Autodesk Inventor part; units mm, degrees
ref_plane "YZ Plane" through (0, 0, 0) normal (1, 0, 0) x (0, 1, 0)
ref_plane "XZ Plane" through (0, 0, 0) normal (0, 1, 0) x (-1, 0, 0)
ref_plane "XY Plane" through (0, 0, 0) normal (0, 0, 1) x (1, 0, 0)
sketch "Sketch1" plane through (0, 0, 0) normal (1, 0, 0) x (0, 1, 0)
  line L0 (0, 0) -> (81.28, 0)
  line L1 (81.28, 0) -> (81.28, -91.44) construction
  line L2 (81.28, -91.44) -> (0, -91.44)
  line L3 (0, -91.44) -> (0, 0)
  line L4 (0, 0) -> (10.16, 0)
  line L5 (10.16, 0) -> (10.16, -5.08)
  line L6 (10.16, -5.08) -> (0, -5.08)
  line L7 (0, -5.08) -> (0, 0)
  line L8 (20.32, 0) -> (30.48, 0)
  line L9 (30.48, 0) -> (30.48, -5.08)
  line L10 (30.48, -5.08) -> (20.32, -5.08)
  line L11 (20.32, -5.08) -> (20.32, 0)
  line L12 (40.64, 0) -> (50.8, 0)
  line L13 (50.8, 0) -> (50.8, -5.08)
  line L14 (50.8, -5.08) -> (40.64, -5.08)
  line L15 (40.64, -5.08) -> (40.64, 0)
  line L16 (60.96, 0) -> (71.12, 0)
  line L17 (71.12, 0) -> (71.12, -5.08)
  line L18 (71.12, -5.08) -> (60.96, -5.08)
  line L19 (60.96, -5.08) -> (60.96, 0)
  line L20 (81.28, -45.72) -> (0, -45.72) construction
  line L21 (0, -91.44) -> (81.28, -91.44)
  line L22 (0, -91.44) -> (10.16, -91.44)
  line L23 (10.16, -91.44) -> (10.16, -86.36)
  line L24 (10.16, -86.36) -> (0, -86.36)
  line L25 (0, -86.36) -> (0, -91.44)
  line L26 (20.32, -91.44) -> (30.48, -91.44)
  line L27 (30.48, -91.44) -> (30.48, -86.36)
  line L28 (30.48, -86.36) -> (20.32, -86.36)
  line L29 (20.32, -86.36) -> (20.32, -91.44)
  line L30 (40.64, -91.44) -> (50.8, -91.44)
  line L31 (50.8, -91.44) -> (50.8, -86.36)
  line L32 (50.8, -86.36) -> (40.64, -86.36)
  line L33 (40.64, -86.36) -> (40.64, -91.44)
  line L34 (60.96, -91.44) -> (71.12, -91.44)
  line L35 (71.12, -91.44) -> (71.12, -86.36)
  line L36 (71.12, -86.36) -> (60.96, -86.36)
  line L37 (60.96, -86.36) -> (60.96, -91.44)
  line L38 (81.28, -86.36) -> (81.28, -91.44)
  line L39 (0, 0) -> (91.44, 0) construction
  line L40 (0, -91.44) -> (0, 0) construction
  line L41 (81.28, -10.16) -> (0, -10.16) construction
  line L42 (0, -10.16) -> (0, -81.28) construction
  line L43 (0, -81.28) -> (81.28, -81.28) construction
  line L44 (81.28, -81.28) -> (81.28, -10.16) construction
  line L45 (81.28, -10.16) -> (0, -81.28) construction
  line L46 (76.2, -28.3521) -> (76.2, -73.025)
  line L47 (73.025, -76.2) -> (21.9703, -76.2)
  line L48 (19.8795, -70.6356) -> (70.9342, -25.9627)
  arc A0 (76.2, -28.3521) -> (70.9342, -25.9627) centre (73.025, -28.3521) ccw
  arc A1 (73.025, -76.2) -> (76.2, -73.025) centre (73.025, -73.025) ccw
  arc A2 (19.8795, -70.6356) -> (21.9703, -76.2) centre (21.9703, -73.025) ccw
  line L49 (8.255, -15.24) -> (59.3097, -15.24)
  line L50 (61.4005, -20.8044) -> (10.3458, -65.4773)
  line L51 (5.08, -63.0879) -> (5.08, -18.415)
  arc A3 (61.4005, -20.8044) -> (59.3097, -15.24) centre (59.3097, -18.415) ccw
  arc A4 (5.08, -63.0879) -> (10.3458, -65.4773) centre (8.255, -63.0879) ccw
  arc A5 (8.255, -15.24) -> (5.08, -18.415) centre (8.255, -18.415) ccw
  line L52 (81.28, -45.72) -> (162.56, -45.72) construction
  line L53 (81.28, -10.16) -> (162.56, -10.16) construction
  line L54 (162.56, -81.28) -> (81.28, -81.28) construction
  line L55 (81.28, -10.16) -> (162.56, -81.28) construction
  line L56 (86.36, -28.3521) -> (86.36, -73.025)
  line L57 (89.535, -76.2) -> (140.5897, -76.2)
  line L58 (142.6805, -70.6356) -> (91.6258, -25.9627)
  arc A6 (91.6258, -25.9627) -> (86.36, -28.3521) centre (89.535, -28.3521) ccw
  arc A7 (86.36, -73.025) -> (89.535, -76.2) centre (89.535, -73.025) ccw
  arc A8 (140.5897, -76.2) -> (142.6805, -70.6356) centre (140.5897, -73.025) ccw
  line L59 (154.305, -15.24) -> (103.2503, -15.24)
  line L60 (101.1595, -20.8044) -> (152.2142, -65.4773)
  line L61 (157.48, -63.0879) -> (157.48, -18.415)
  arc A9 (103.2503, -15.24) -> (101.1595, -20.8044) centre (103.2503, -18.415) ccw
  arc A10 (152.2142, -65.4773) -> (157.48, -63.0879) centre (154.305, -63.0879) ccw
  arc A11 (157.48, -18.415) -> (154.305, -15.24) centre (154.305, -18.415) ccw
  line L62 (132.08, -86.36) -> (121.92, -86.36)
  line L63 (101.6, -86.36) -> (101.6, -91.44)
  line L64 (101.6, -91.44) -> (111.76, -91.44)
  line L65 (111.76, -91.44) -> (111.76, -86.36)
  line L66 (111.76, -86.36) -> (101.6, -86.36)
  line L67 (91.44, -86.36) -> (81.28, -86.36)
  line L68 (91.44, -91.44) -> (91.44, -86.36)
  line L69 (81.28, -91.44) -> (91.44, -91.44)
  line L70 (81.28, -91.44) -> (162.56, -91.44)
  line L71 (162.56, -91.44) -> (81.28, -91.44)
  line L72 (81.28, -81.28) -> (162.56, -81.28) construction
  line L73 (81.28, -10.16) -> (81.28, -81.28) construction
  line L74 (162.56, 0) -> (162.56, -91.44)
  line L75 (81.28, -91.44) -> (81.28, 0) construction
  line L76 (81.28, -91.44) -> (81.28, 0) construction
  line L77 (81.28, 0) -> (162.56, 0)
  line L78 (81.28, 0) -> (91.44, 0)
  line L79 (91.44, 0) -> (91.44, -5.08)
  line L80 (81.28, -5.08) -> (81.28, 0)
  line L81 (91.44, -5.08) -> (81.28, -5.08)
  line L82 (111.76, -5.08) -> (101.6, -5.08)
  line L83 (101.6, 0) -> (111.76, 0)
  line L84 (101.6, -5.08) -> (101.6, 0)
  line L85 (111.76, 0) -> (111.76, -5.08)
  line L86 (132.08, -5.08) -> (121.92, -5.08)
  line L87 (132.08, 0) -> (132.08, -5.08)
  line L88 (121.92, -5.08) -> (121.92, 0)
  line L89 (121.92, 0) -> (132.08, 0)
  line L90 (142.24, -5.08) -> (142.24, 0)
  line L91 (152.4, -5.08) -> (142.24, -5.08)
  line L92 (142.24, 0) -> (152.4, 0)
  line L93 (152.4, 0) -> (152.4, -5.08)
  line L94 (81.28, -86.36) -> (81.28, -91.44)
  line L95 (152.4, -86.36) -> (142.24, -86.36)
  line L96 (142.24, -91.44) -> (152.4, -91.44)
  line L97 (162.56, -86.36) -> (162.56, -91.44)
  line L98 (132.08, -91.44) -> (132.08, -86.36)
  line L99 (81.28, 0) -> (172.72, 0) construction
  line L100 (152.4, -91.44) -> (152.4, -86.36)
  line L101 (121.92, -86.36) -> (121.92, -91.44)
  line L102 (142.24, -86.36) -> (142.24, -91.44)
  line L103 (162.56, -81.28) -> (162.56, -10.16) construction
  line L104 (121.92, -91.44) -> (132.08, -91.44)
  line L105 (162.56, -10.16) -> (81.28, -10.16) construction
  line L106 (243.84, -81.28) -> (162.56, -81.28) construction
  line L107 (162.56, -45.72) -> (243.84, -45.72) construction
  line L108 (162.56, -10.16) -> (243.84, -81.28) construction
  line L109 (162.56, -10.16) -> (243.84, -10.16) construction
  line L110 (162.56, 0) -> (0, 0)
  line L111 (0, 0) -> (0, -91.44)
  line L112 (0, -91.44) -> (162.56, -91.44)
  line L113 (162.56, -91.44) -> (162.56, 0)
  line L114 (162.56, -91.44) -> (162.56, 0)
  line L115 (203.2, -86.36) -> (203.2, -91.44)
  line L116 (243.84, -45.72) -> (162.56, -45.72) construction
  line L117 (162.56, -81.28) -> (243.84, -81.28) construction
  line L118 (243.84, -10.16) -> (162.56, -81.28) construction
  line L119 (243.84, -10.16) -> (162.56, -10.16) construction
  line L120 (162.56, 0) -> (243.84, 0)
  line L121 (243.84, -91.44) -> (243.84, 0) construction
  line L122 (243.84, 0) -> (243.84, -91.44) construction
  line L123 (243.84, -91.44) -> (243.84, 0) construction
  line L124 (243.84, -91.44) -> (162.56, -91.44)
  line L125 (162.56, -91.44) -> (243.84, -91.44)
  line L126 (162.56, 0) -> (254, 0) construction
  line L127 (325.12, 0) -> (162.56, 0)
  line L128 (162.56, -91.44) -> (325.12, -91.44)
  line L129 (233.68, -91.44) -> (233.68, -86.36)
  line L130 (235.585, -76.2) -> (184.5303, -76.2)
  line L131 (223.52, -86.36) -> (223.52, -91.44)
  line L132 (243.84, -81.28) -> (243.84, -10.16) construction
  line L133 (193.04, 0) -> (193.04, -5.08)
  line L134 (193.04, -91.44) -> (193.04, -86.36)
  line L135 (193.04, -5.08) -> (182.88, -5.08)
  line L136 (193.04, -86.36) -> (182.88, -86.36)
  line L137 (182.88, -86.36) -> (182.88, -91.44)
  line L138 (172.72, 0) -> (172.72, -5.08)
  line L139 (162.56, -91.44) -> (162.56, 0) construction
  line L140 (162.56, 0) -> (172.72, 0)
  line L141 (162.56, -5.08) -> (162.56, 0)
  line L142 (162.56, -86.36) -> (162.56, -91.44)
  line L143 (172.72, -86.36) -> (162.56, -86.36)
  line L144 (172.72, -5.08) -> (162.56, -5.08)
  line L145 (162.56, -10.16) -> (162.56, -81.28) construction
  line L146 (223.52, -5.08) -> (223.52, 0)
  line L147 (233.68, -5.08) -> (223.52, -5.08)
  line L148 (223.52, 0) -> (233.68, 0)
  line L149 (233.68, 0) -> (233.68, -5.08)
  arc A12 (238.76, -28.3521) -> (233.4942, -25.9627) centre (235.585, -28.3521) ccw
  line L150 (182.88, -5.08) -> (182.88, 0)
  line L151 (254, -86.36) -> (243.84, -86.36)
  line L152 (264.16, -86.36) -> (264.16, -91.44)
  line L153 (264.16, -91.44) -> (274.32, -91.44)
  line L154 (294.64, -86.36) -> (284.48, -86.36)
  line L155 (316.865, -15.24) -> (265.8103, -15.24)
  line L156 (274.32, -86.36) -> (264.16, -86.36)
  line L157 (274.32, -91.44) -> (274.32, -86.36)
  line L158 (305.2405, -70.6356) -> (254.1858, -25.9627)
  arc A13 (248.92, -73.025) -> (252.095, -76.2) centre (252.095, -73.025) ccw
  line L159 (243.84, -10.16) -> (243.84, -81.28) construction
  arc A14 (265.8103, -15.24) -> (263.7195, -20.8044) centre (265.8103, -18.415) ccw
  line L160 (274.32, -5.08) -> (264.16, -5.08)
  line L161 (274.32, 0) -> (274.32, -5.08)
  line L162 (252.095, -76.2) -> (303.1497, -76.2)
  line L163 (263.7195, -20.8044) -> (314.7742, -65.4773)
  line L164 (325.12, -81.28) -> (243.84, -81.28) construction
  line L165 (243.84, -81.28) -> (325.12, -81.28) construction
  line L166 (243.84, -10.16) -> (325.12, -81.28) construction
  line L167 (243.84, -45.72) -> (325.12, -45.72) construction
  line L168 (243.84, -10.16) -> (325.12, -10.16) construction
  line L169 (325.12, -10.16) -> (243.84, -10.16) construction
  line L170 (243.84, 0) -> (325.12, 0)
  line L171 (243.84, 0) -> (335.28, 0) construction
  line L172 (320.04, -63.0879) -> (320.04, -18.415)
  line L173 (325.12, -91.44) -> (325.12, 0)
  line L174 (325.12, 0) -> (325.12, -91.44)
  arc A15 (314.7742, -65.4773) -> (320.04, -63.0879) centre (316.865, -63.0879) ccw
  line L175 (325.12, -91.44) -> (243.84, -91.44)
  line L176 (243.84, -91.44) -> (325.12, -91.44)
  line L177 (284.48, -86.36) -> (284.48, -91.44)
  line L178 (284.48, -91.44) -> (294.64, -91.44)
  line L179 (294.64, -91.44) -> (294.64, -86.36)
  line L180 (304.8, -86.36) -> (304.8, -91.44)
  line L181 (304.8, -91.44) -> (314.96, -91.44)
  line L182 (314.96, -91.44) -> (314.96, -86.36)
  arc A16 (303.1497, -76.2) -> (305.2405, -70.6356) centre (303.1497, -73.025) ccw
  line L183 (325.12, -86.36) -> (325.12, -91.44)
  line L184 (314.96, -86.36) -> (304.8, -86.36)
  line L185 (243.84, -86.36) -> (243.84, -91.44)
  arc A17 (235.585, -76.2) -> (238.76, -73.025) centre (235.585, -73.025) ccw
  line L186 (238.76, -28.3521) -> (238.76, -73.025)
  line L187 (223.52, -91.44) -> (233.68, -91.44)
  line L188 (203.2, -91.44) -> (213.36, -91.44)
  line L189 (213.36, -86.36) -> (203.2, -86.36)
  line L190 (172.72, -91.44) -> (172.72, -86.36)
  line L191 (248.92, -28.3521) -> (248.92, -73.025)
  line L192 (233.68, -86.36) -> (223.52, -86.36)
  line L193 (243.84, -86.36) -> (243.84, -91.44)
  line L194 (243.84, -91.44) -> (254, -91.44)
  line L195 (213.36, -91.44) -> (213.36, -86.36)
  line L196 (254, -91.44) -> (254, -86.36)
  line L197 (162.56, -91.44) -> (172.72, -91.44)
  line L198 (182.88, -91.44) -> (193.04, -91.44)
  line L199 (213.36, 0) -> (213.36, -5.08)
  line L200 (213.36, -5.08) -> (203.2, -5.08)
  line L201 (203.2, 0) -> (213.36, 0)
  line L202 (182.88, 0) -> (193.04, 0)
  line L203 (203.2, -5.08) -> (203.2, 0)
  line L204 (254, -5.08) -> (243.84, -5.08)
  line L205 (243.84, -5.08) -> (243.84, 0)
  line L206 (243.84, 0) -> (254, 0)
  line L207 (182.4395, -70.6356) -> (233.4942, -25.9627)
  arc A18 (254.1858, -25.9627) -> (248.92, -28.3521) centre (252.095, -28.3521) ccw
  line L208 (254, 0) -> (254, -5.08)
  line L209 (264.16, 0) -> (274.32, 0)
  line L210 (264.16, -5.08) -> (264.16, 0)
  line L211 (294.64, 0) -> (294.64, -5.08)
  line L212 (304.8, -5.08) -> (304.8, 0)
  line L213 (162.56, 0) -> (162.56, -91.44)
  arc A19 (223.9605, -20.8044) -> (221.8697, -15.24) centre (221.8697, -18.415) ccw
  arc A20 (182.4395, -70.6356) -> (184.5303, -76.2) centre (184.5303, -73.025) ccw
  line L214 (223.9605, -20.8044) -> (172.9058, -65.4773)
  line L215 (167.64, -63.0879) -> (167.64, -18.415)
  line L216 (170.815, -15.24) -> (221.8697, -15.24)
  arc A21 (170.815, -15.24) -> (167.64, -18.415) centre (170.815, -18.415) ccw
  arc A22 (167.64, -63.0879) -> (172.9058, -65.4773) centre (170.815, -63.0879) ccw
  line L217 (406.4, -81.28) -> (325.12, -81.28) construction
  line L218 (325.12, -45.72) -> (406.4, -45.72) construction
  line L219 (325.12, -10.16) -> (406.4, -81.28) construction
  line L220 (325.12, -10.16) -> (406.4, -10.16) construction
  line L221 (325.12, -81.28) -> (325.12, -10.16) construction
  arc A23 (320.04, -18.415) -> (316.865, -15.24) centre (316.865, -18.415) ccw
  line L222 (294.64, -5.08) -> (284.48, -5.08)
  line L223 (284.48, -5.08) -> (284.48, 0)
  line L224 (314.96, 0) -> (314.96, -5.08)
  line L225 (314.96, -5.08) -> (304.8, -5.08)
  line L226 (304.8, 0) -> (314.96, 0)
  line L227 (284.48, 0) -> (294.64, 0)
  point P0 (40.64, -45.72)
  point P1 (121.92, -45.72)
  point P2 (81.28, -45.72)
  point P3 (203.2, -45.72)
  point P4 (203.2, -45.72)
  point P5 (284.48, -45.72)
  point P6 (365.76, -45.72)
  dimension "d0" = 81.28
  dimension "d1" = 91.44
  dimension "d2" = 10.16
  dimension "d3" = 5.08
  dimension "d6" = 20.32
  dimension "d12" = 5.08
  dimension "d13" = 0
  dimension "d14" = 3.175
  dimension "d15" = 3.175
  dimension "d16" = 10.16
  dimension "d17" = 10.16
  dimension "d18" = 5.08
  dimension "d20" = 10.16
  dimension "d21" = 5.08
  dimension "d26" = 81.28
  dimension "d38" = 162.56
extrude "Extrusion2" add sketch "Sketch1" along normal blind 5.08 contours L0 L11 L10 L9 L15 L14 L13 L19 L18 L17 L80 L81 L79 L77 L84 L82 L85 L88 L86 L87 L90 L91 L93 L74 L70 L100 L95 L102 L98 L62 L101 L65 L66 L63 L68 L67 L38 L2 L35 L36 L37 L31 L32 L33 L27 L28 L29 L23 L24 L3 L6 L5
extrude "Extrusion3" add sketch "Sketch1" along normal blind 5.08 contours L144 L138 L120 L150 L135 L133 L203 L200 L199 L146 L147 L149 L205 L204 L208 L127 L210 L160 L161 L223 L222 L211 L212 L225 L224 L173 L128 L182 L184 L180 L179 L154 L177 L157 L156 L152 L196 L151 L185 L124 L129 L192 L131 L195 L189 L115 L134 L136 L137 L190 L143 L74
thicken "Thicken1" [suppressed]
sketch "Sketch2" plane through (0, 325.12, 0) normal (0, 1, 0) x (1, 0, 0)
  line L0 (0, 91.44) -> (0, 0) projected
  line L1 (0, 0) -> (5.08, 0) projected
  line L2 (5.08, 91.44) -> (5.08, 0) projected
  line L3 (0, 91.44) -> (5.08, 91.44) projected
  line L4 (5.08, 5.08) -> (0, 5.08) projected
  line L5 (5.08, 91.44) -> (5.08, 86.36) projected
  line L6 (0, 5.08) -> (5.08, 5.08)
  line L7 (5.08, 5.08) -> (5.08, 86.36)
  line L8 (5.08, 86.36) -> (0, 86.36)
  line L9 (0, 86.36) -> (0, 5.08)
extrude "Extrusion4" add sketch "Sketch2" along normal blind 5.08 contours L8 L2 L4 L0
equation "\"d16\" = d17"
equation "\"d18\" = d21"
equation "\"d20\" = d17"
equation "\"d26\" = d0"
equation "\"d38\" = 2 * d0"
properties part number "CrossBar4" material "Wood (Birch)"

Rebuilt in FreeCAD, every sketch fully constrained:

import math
import FreeCAD as App
import Part
import Sketcher
Q = App.Units.Quantity


def add_polygon(sketch, points):
    """Adds a closed chain of lines whose ends are joined by coincident constraints."""
    first, n = sketch.GeometryCount, len(points)
    for a, b in zip(points, points[1:] + points[:1]):
        sketch.addGeometry(Part.LineSegment(App.Vector(*a, 0), App.Vector(*b, 0)), False)
    for i in range(n):
        sketch.addConstraint(Sketcher.Constraint("Coincident", first + i, 2, first + (i + 1) % n, 1))

doc = App.newDocument("Part")
params = doc.addObject("Spreadsheet::Sheet", "Params")
for row, (alias, value) in enumerate([
    ("sketch1_width", "0.4 in"),
    ("sketch1_height", "0.2 in"),
    ("sketch1_height2", "3.2 in"),
    ("sketch1_radius", "0.125 in"),
    ("pad1_length", "0.2 in"),
    ("sketch2_width", "0.4 in"),
    ("sketch2_height", "3.2 in"),
    ("sketch2_height2", "0.2 in"),
    ("sketch2_radius", "0.125 in"),
    ("pad2_length", "0.2 in"),
    ("sketch3_width", "0.2 in"),
    ("sketch3_height", "3.2 in"),
    ("pad3_length", "0.2 in"),
], start=1):
    params.set(f"A{row}", alias)
    params.set(f"B{row}", "=" + value)
    params.setAlias(f"B{row}", alias)

body = doc.addObject("PartDesign::Body", "Body")

# Sketch on YZ plane
sketch1 = body.newObject("Sketcher::SketchObject", "Sketch")
sketch1.AttachmentSupport = (doc.getObject("YZ_Plane"), [""])
sketch1.MapMode = "FlatFace"
add_polygon(sketch1, [(20.3, 0), (10.2, 0), (10.2, -5.1), (0, -5.1), (0, -86.4), (10.2, -86.4), (10.2, -91.4), (20.3, -91.4), (20.3, -86.4), (30.5, -86.4), (30.5, -91.4), (40.6, -91.4), (40.6, -86.4), (50.8, -86.4), (50.8, -91.4), (61, -91.4), (61, -86.4), (71.1, -86.4), (71.1, -91.4), (81.3, -91.4), (81.3, -86.4), (91.4, -86.4), (91.4, -91.4), (101.6, -91.4), (101.6, -86.4), (111.8, -86.4), (111.8, -91.4), (121.9, -91.4), (121.9, -86.4), (132.1, -86.4), (132.1, -91.4), (142.2, -91.4), (142.2, -86.4), (152.4, -86.4), (152.4, -91.4), (162.6, -91.4), (162.6, 0), (152.4, 0), (152.4, -5.1), (142.2, -5.1), (142.2, 0), (132.1, 0), (132.1, -5.1), (121.9, -5.1), (121.9, 0), (111.8, 0), (111.8, -5.1), (101.6, -5.1), (101.6, 0), (91.4, 0), (91.4, -5.1), (81.3, -5.1), (81.3, 0), (71.1, 0), (71.1, -5.1), (61, -5.1), (61, 0), (50.8, 0), (50.8, -5.1), (40.6, -5.1), (40.6, 0), (30.5, 0), (30.5, -5.1), (20.3, -5.1)])  # lines 0-63
sketch1.addGeometry(Part.ArcOfCircle(Part.Circle(App.Vector(73, -28.4, 0), App.Vector(0, 0, 1), 3.2), math.radians(0), math.radians(131)), False)  # 64
sketch1.addGeometry(Part.LineSegment(App.Vector(76.2, -28.4, 0), App.Vector(76.2, -73, 0)), False)  # 65
sketch1.addGeometry(Part.ArcOfCircle(Part.Circle(App.Vector(73, -73, 0), App.Vector(0, 0, 1), 3.2), math.radians(-90), math.radians(0)), False)  # 66
sketch1.addGeometry(Part.LineSegment(App.Vector(73, -76.2, 0), App.Vector(22, -76.2, 0)), False)  # 67
sketch1.addGeometry(Part.ArcOfCircle(Part.Circle(App.Vector(22, -73, 0), App.Vector(0, 0, 1), 3.2), math.radians(131), math.radians(270)), False)  # 68
sketch1.addGeometry(Part.LineSegment(App.Vector(19.9, -70.6, 0), App.Vector(70.9, -26, 0)), False)  # 69
sketch1.addGeometry(Part.LineSegment(App.Vector(86.4, -73, 0), App.Vector(86.4, -28.4, 0)), False)  # 70
sketch1.addGeometry(Part.ArcOfCircle(Part.Circle(App.Vector(89.5, -28.4, 0), App.Vector(0, 0, 1), 3.2), math.radians(49), math.radians(180)), False)  # 71
sketch1.addGeometry(Part.LineSegment(App.Vector(91.6, -26, 0), App.Vector(142.7, -70.6, 0)), False)  # 72
sketch1.addGeometry(Part.ArcOfCircle(Part.Circle(App.Vector(140.6, -73, 0), App.Vector(0, 0, 1), 3.2), math.radians(-90), math.radians(49)), False)  # 73
sketch1.addGeometry(Part.LineSegment(App.Vector(140.6, -76.2, 0), App.Vector(89.5, -76.2, 0)), False)  # 74
sketch1.addGeometry(Part.ArcOfCircle(Part.Circle(App.Vector(89.5, -73, 0), App.Vector(0, 0, 1), 3.2), math.radians(180), math.radians(270)), False)  # 75
sketch1.addGeometry(Part.ArcOfCircle(Part.Circle(App.Vector(8.3, -18.4, 0), App.Vector(0, 0, 1), 3.2), math.radians(90), math.radians(180)), False)  # 76
sketch1.addGeometry(Part.LineSegment(App.Vector(8.3, -15.2, 0), App.Vector(59.3, -15.2, 0)), False)  # 77
sketch1.addGeometry(Part.ArcOfCircle(Part.Circle(App.Vector(59.3, -18.4, 0), App.Vector(0, 0, 1), 3.2), math.radians(-49), math.radians(90)), False)  # 78
sketch1.addGeometry(Part.LineSegment(App.Vector(61.4, -20.8, 0), App.Vector(10.3, -65.5, 0)), False)  # 79
sketch1.addGeometry(Part.ArcOfCircle(Part.Circle(App.Vector(8.3, -63.1, 0), App.Vector(0, 0, 1), 3.2), math.radians(180), math.radians(311)), False)  # 80
sketch1.addGeometry(Part.LineSegment(App.Vector(5.1, -63.1, 0), App.Vector(5.1, -18.4, 0)), False)  # 81
sketch1.addGeometry(Part.LineSegment(App.Vector(103.3, -15.2, 0), App.Vector(154.3, -15.2, 0)), False)  # 82
sketch1.addGeometry(Part.ArcOfCircle(Part.Circle(App.Vector(154.3, -18.4, 0), App.Vector(0, 0, 1), 3.2), math.radians(0), math.radians(90)), False)  # 83
sketch1.addGeometry(Part.LineSegment(App.Vector(157.5, -18.4, 0), App.Vector(157.5, -63.1, 0)), False)  # 84
sketch1.addGeometry(Part.ArcOfCircle(Part.Circle(App.Vector(154.3, -63.1, 0), App.Vector(0, 0, 1), 3.2), math.radians(-131), math.radians(0)), False)  # 85
sketch1.addGeometry(Part.LineSegment(App.Vector(152.2, -65.5, 0), App.Vector(101.2, -20.8, 0)), False)  # 86
sketch1.addGeometry(Part.ArcOfCircle(Part.Circle(App.Vector(103.3, -18.4, 0), App.Vector(0, 0, 1), 3.2), math.radians(90), math.radians(229)), False)  # 87
sketch1.addConstraint([
    Sketcher.Constraint("Tangent", 64, 1, 65, 1),
    Sketcher.Constraint("Tangent", 65, 2, 66, 2),
    Sketcher.Constraint("Tangent", 66, 1, 67, 1),
    Sketcher.Constraint("Tangent", 67, 2, 68, 2),
    Sketcher.Constraint("Tangent", 68, 1, 69, 1),
    Sketcher.Constraint("Tangent", 69, 2, 64, 2),
    Sketcher.Constraint("Tangent", 70, 2, 71, 2),
    Sketcher.Constraint("Tangent", 71, 1, 72, 1),
    Sketcher.Constraint("Tangent", 72, 2, 73, 2),
    Sketcher.Constraint("Tangent", 73, 1, 74, 1),
    Sketcher.Constraint("Tangent", 74, 2, 75, 2),
    Sketcher.Constraint("Tangent", 75, 1, 70, 1),
    Sketcher.Constraint("Tangent", 76, 1, 77, 1),
    Sketcher.Constraint("Tangent", 77, 2, 78, 2),
    Sketcher.Constraint("Tangent", 78, 1, 79, 1),
    Sketcher.Constraint("Tangent", 79, 2, 80, 2),
    Sketcher.Constraint("Tangent", 80, 1, 81, 1),
    Sketcher.Constraint("Tangent", 81, 2, 76, 2),
    Sketcher.Constraint("Tangent", 82, 2, 83, 2),
    Sketcher.Constraint("Tangent", 83, 1, 84, 1),
    Sketcher.Constraint("Tangent", 84, 2, 85, 2),
    Sketcher.Constraint("Tangent", 85, 1, 86, 1),
    Sketcher.Constraint("Tangent", 86, 2, 87, 2),
    Sketcher.Constraint("Tangent", 87, 1, 82, 1),
    Sketcher.Constraint("Horizontal", 0),
    Sketcher.Constraint("Vertical", 1),
    Sketcher.Constraint("Horizontal", 2),
    Sketcher.Constraint("Vertical", 3),
    Sketcher.Constraint("Horizontal", 4),
    Sketcher.Constraint("Vertical", 5),
    Sketcher.Constraint("Horizontal", 6),
    Sketcher.Constraint("Vertical", 7),
    Sketcher.Constraint("Horizontal", 8),
    Sketcher.Constraint("Vertical", 9),
    Sketcher.Constraint("Horizontal", 10),
    Sketcher.Constraint("Vertical", 11),
    Sketcher.Constraint("Horizontal", 12),
    Sketcher.Constraint("Vertical", 13),
    Sketcher.Constraint("Horizontal", 14),
    Sketcher.Constraint("Vertical", 15),
    Sketcher.Constraint("Horizontal", 16),
    Sketcher.Constraint("Vertical", 17),
    Sketcher.Constraint("Horizontal", 18),
    Sketcher.Constraint("Vertical", 19),
    Sketcher.Constraint("Horizontal", 20),
    Sketcher.Constraint("Vertical", 21),
    Sketcher.Constraint("Horizontal", 22),
    Sketcher.Constraint("Vertical", 23),
    Sketcher.Constraint("Horizontal", 24),
    Sketcher.Constraint("Vertical", 25),
    Sketcher.Constraint("Horizontal", 26),
    Sketcher.Constraint("Vertical", 27),
    Sketcher.Constraint("Horizontal", 28),
    Sketcher.Constraint("Vertical", 29),
    Sketcher.Constraint("Horizontal", 30),
    Sketcher.Constraint("Vertical", 31),
    Sketcher.Constraint("Horizontal", 32),
    Sketcher.Constraint("Vertical", 33),
    Sketcher.Constraint("Horizontal", 34),
    Sketcher.Constraint("Vertical", 35),
    Sketcher.Constraint("Horizontal", 36),
    Sketcher.Constraint("Vertical", 37),
    Sketcher.Constraint("Horizontal", 38),
    Sketcher.Constraint("Vertical", 39),
    Sketcher.Constraint("Horizontal", 40),
    Sketcher.Constraint("Vertical", 41),
    Sketcher.Constraint("Horizontal", 42),
    Sketcher.Constraint("Vertical", 43),
    Sketcher.Constraint("Horizontal", 44),
    Sketcher.Constraint("Vertical", 45),
    Sketcher.Constraint("Horizontal", 46),
    Sketcher.Constraint("Vertical", 47),
    Sketcher.Constraint("Horizontal", 48),
    Sketcher.Constraint("Vertical", 49),
    Sketcher.Constraint("Horizontal", 50),
    Sketcher.Constraint("Vertical", 51),
    Sketcher.Constraint("Horizontal", 52),
    Sketcher.Constraint("Vertical", 53),
    Sketcher.Constraint("Horizontal", 54),
    Sketcher.Constraint("Vertical", 55),
    Sketcher.Constraint("Horizontal", 56),
    Sketcher.Constraint("Vertical", 57),
    Sketcher.Constraint("Horizontal", 58),
    Sketcher.Constraint("Vertical", 59),
    Sketcher.Constraint("Horizontal", 60),
    Sketcher.Constraint("Vertical", 61),
    Sketcher.Constraint("Horizontal", 62),
    Sketcher.Constraint("Vertical", 63),
    Sketcher.Constraint("Vertical", 65),
    Sketcher.Constraint("Horizontal", 67),
    Sketcher.Constraint("Vertical", 70),
    Sketcher.Constraint("Horizontal", 74),
    Sketcher.Constraint("Horizontal", 77),
    Sketcher.Constraint("Vertical", 81),
    Sketcher.Constraint("Horizontal", 82),
    Sketcher.Constraint("Vertical", 84),
    Sketcher.Constraint("Equal", 64, 66),
    Sketcher.Constraint("Equal", 66, 68),
    Sketcher.Constraint("Equal", 68, 71),
    Sketcher.Constraint("Equal", 71, 73),
    Sketcher.Constraint("Equal", 73, 75),
    Sketcher.Constraint("Equal", 75, 76),
    Sketcher.Constraint("Equal", 76, 78),
    Sketcher.Constraint("Equal", 78, 80),
    Sketcher.Constraint("Equal", 80, 83),
    Sketcher.Constraint("Equal", 83, 85),
    Sketcher.Constraint("Equal", 85, 87),
    Sketcher.Constraint("PointOnObject", 0, 2, -1),
    Sketcher.Constraint("PointOnObject", 2, 2, -2),
    Sketcher.Constraint("PointOnObject", 35, 2, -1),
    Sketcher.Constraint("PointOnObject", 39, 2, -1),
    Sketcher.Constraint("PointOnObject", 43, 2, -1),
    Sketcher.Constraint("PointOnObject", 47, 2, -1),
    Sketcher.Constraint("PointOnObject", 51, 2, -1),
    Sketcher.Constraint("PointOnObject", 55, 2, -1),
    Sketcher.Constraint("PointOnObject", 59, 2, -1),
    Sketcher.Constraint("Parallel", 69, 79),
    Sketcher.Constraint("Parallel", 72, 86),
    Sketcher.Constraint("Horizontal", 64, 3, 71, 3),
    Sketcher.Constraint("Horizontal", 68, 3, 73, 3),
    Sketcher.Constraint("Horizontal", 78, 3, 83, 3),
    Sketcher.Constraint("Horizontal", 80, 3, 85, 3),
    Sketcher.Constraint("Horizontal", 4, 2, 7, 2),
    Sketcher.Constraint("Horizontal", 6, 2, 9, 2),
    Sketcher.Constraint("Horizontal", 8, 2, 11, 2),
    Sketcher.Constraint("Horizontal", 10, 2, 13, 2),
    Sketcher.Constraint("Horizontal", 12, 2, 15, 2),
    Sketcher.Constraint("Horizontal", 14, 2, 17, 2),
    Sketcher.Constraint("Horizontal", 16, 2, 19, 2),
    Sketcher.Constraint("Horizontal", 18, 2, 21, 2),
    Sketcher.Constraint("Horizontal", 20, 2, 23, 2),
    Sketcher.Constraint("Horizontal", 22, 2, 25, 2),
    Sketcher.Constraint("Horizontal", 24, 2, 27, 2),
    Sketcher.Constraint("Horizontal", 26, 2, 29, 2),
    Sketcher.Constraint("Horizontal", 28, 2, 31, 2),
    Sketcher.Constraint("Horizontal", 30, 2, 33, 2),
    Sketcher.Constraint("Horizontal", 2, 2, 37, 2),
    Sketcher.Constraint("Horizontal", 38, 2, 41, 2),
    Sketcher.Constraint("Horizontal", 42, 2, 45, 2),
    Sketcher.Constraint("Horizontal", 46, 2, 49, 2),
    Sketcher.Constraint("Horizontal", 50, 2, 53, 2),
    Sketcher.Constraint("Horizontal", 54, 2, 57, 2),
    Sketcher.Constraint("Horizontal", 58, 2, 61, 2),
    Sketcher.Constraint("Horizontal", 69, 2, 71, 1),
    Sketcher.Constraint("Vertical", 1, 2, 4, 2),
    Sketcher.Constraint("Vertical", 33, 2, 36, 2),
    Sketcher.Constraint("Vertical", 31, 2, 38, 2),
    Sketcher.Constraint("Vertical", 29, 2, 40, 2),
    Sketcher.Constraint("Vertical", 27, 2, 42, 2),
    Sketcher.Constraint("Vertical", 25, 2, 44, 2),
    Sketcher.Constraint("Vertical", 23, 2, 46, 2),
    Sketcher.Constraint("Vertical", 21, 2, 48, 2),
    Sketcher.Constraint("Vertical", 19, 2, 50, 2),
    Sketcher.Constraint("Vertical", 17, 2, 52, 2),
    Sketcher.Constraint("Vertical", 15, 2, 54, 2),
    Sketcher.Constraint("Vertical", 13, 2, 56, 2),
    Sketcher.Constraint("Vertical", 11, 2, 58, 2),
    Sketcher.Constraint("Vertical", 9, 2, 60, 2),
    Sketcher.Constraint("Vertical", 7, 2, 62, 2),
    Sketcher.Constraint("Equal", 0, 2),
    Sketcher.Constraint("Equal", 6, 8),
    Sketcher.Constraint("Equal", 8, 10),
    Sketcher.Constraint("Equal", 10, 12),
    Sketcher.Constraint("Equal", 12, 14),
    Sketcher.Constraint("Equal", 14, 16),
    Sketcher.Constraint("Equal", 16, 18),
    Sketcher.Constraint("Equal", 18, 20),
    Sketcher.Constraint("Equal", 20, 22),
    Sketcher.Constraint("Equal", 22, 24),
    Sketcher.Constraint("Equal", 24, 26),
    Sketcher.Constraint("Equal", 26, 28),
    Sketcher.Constraint("Equal", 28, 30),
    Sketcher.Constraint("Equal", 30, 32),
    Sketcher.Constraint("Equal", 32, 34),
    Sketcher.Constraint("Equal", 74, 77),
    Sketcher.Constraint("Equal", 1, 5),
    Sketcher.Constraint("DistanceX", 0, 2, 0, 1, Q("0.4 in")),
    Sketcher.Constraint("DistanceY", 1, 2, 1, 1, Q("0.2 in")),
    Sketcher.Constraint("DistanceY", 3, 2, 3, 1, Q("3.2 in")),
    Sketcher.Constraint("Radius", 64, Q("0.125 in")),
    Sketcher.Constraint("DistanceX", -1, 1, 80, 1, Q("0.2 in")),
    Sketcher.Constraint("DistanceX", -1, 1, 64, 1, Q("3 in")),
    Sketcher.Constraint("DistanceY", 66, 1, -1, 1, Q("3 in")),
    Sketcher.Constraint("DistanceX", -1, 1, 70, 2, Q("3.4 in")),
    Sketcher.Constraint("DistanceY", 76, 1, -1, 1, Q("0.6 in")),
    Sketcher.Constraint("DistanceX", -1, 1, 83, 1, Q("6.2 in")),
    Sketcher.Constraint("DistanceX", 67, 2, 67, 1, 51.0547),
    Sketcher.Constraint("DistanceY", 65, 2, 65, 1, 44.673),
])
sketch1.setExpression("Constraints[240]", "Params.sketch1_width")
sketch1.setExpression("Constraints[241]", "Params.sketch1_height")
sketch1.setExpression("Constraints[242]", "Params.sketch1_height2")
sketch1.setExpression("Constraints[243]", "Params.sketch1_radius")
pad1 = body.newObject("PartDesign::Pad", "Pad")
pad1.Profile = sketch1
pad1.setExpression("Length", "Params.pad1_length")

# Sketch on YZ plane
sketch2 = body.newObject("Sketcher::SketchObject", "Sketch001")
sketch2.AttachmentSupport = (doc.getObject("YZ_Plane"), [""])
sketch2.MapMode = "FlatFace"
add_polygon(sketch2, [(172.7, -5.1), (162.6, -5.1), (162.6, -86.4), (172.7, -86.4), (172.7, -91.4), (182.9, -91.4), (182.9, -86.4), (193, -86.4), (193, -91.4), (203.2, -91.4), (203.2, -86.4), (213.4, -86.4), (213.4, -91.4), (223.5, -91.4), (223.5, -86.4), (233.7, -86.4), (233.7, -91.4), (243.8, -91.4), (243.8, -86.4), (254, -86.4), (254, -91.4), (264.2, -91.4), (264.2, -86.4), (274.3, -86.4), (274.3, -91.4), (284.5, -91.4), (284.5, -86.4), (294.6, -86.4), (294.6, -91.4), (304.8, -91.4), (304.8, -86.4), (315, -86.4), (315, -91.4), (325.1, -91.4), (325.1, 0), (315, 0), (315, -5.1), (304.8, -5.1), (304.8, 0), (294.6, 0), (294.6, -5.1), (284.5, -5.1), (284.5, 0), (274.3, 0), (274.3, -5.1), (264.2, -5.1), (264.2, 0), (254, 0), (254, -5.1), (243.8, -5.1), (243.8, 0), (233.7, 0), (233.7, -5.1), (223.5, -5.1), (223.5, 0), (213.4, 0), (213.4, -5.1), (203.2, -5.1), (203.2, 0), (193, 0), (193, -5.1), (182.9, -5.1), (182.9, 0), (172.7, 0)])  # lines 0-63
sketch2.addGeometry(Part.ArcOfCircle(Part.Circle(App.Vector(235.6, -73, 0), App.Vector(0, 0, 1), 3.2), math.radians(-90), math.radians(0)), False)  # 64
sketch2.addGeometry(Part.LineSegment(App.Vector(235.6, -76.2, 0), App.Vector(184.5, -76.2, 0)), False)  # 65
sketch2.addGeometry(Part.ArcOfCircle(Part.Circle(App.Vector(184.5, -73, 0), App.Vector(0, 0, 1), 3.2), math.radians(131), math.radians(270)), False)  # 66
sketch2.addGeometry(Part.LineSegment(App.Vector(182.4, -70.6, 0), App.Vector(233.5, -26, 0)), False)  # 67
sketch2.addGeometry(Part.ArcOfCircle(Part.Circle(App.Vector(235.6, -28.4, 0), App.Vector(0, 0, 1), 3.2), math.radians(0), math.radians(131)), False)  # 68
sketch2.addGeometry(Part.LineSegment(App.Vector(238.8, -28.4, 0), App.Vector(238.8, -73, 0)), False)  # 69
sketch2.addGeometry(Part.LineSegment(App.Vector(254.2, -26, 0), App.Vector(305.2, -70.6, 0)), False)  # 70
sketch2.addGeometry(Part.ArcOfCircle(Part.Circle(App.Vector(303.1, -73, 0), App.Vector(0, 0, 1), 3.2), math.radians(-90), math.radians(49)), False)  # 71
sketch2.addGeometry(Part.LineSegment(App.Vector(303.1, -76.2, 0), App.Vector(252.1, -76.2, 0)), False)  # 72
sketch2.addGeometry(Part.ArcOfCircle(Part.Circle(App.Vector(252.1, -73, 0), App.Vector(0, 0, 1), 3.2), math.radians(180), math.radians(270)), False)  # 73
sketch2.addGeometry(Part.LineSegment(App.Vector(248.9, -73, 0), App.Vector(248.9, -28.4, 0)), False)  # 74
sketch2.addGeometry(Part.ArcOfCircle(Part.Circle(App.Vector(252.1, -28.4, 0), App.Vector(0, 0, 1), 3.2), math.radians(49), math.radians(180)), False)  # 75
sketch2.addGeometry(Part.ArcOfCircle(Part.Circle(App.Vector(221.9, -18.4, 0), App.Vector(0, 0, 1), 3.2), math.radians(-49), math.radians(90)), False)  # 76
sketch2.addGeometry(Part.LineSegment(App.Vector(224, -20.8, 0), App.Vector(172.9, -65.5, 0)), False)  # 77
sketch2.addGeometry(Part.ArcOfCircle(Part.Circle(App.Vector(170.8, -63.1, 0), App.Vector(0, 0, 1), 3.2), math.radians(180), math.radians(311)), False)  # 78
sketch2.addGeometry(Part.LineSegment(App.Vector(167.6, -63.1, 0), App.Vector(167.6, -18.4, 0)), False)  # 79
sketch2.addGeometry(Part.ArcOfCircle(Part.Circle(App.Vector(170.8, -18.4, 0), App.Vector(0, 0, 1), 3.2), math.radians(90), math.radians(180)), False)  # 80
sketch2.addGeometry(Part.LineSegment(App.Vector(170.8, -15.2, 0), App.Vector(221.9, -15.2, 0)), False)  # 81
sketch2.addGeometry(Part.LineSegment(App.Vector(265.8, -15.2, 0), App.Vector(316.9, -15.2, 0)), False)  # 82
sketch2.addGeometry(Part.ArcOfCircle(Part.Circle(App.Vector(316.9, -18.4, 0), App.Vector(0, 0, 1), 3.2), math.radians(0), math.radians(90)), False)  # 83
sketch2.addGeometry(Part.LineSegment(App.Vector(320, -18.4, 0), App.Vector(320, -63.1, 0)), False)  # 84
sketch2.addGeometry(Part.ArcOfCircle(Part.Circle(App.Vector(316.9, -63.1, 0), App.Vector(0, 0, 1), 3.2), math.radians(-131), math.radians(0)), False)  # 85
sketch2.addGeometry(Part.LineSegment(App.Vector(314.8, -65.5, 0), App.Vector(263.7, -20.8, 0)), False)  # 86
sketch2.addGeometry(Part.ArcOfCircle(Part.Circle(App.Vector(265.8, -18.4, 0), App.Vector(0, 0, 1), 3.2), math.radians(90), math.radians(229)), False)  # 87
sketch2.addConstraint([
    Sketcher.Constraint("Tangent", 64, 1, 65, 1),
    Sketcher.Constraint("Tangent", 65, 2, 66, 2),
    Sketcher.Constraint("Tangent", 66, 1, 67, 1),
    Sketcher.Constraint("Tangent", 67, 2, 68, 2),
    Sketcher.Constraint("Tangent", 68, 1, 69, 1),
    Sketcher.Constraint("Tangent", 69, 2, 64, 2),
    Sketcher.Constraint("Tangent", 70, 2, 71, 2),
    Sketcher.Constraint("Tangent", 71, 1, 72, 1),
    Sketcher.Constraint("Tangent", 72, 2, 73, 2),
    Sketcher.Constraint("Tangent", 73, 1, 74, 1),
    Sketcher.Constraint("Tangent", 74, 2, 75, 2),
    Sketcher.Constraint("Tangent", 75, 1, 70, 1),
    Sketcher.Constraint("Tangent", 76, 1, 77, 1),
    Sketcher.Constraint("Tangent", 77, 2, 78, 2),
    Sketcher.Constraint("Tangent", 78, 1, 79, 1),
    Sketcher.Constraint("Tangent", 79, 2, 80, 2),
    Sketcher.Constraint("Tangent", 80, 1, 81, 1),
    Sketcher.Constraint("Tangent", 81, 2, 76, 2),
    Sketcher.Constraint("Tangent", 82, 2, 83, 2),
    Sketcher.Constraint("Tangent", 83, 1, 84, 1),
    Sketcher.Constraint("Tangent", 84, 2, 85, 2),
    Sketcher.Constraint("Tangent", 85, 1, 86, 1),
    Sketcher.Constraint("Tangent", 86, 2, 87, 2),
    Sketcher.Constraint("Tangent", 87, 1, 82, 1),
    Sketcher.Constraint("Horizontal", 0),
    Sketcher.Constraint("Vertical", 1),
    Sketcher.Constraint("Horizontal", 2),
    Sketcher.Constraint("Vertical", 3),
    Sketcher.Constraint("Horizontal", 4),
    Sketcher.Constraint("Vertical", 5),
    Sketcher.Constraint("Horizontal", 6),
    Sketcher.Constraint("Vertical", 7),
    Sketcher.Constraint("Horizontal", 8),
    Sketcher.Constraint("Vertical", 9),
    Sketcher.Constraint("Horizontal", 10),
    Sketcher.Constraint("Vertical", 11),
    Sketcher.Constraint("Horizontal", 12),
    Sketcher.Constraint("Vertical", 13),
    Sketcher.Constraint("Horizontal", 14),
    Sketcher.Constraint("Vertical", 15),
    Sketcher.Constraint("Horizontal", 16),
    Sketcher.Constraint("Vertical", 17),
    Sketcher.Constraint("Horizontal", 18),
    Sketcher.Constraint("Vertical", 19),
    Sketcher.Constraint("Horizontal", 20),
    Sketcher.Constraint("Vertical", 21),
    Sketcher.Constraint("Horizontal", 22),
    Sketcher.Constraint("Vertical", 23),
    Sketcher.Constraint("Horizontal", 24),
    Sketcher.Constraint("Vertical", 25),
    Sketcher.Constraint("Horizontal", 26),
    Sketcher.Constraint("Vertical", 27),
    Sketcher.Constraint("Horizontal", 28),
    Sketcher.Constraint("Vertical", 29),
    Sketcher.Constraint("Horizontal", 30),
    Sketcher.Constraint("Vertical", 31),
    Sketcher.Constraint("Horizontal", 32),
    Sketcher.Constraint("Vertical", 33),
    Sketcher.Constraint("Horizontal", 34),
    Sketcher.Constraint("Vertical", 35),
    Sketcher.Constraint("Horizontal", 36),
    Sketcher.Constraint("Vertical", 37),
    Sketcher.Constraint("Horizontal", 38),
    Sketcher.Constraint("Vertical", 39),
    Sketcher.Constraint("Horizontal", 40),
    Sketcher.Constraint("Vertical", 41),
    Sketcher.Constraint("Horizontal", 42),
    Sketcher.Constraint("Vertical", 43),
    Sketcher.Constraint("Horizontal", 44),
    Sketcher.Constraint("Vertical", 45),
    Sketcher.Constraint("Horizontal", 46),
    Sketcher.Constraint("Vertical", 47),
    Sketcher.Constraint("Horizontal", 48),
    Sketcher.Constraint("Vertical", 49),
    Sketcher.Constraint("Horizontal", 50),
    Sketcher.Constraint("Vertical", 51),
    Sketcher.Constraint("Horizontal", 52),
    Sketcher.Constraint("Vertical", 53),
    Sketcher.Constraint("Horizontal", 54),
    Sketcher.Constraint("Vertical", 55),
    Sketcher.Constraint("Horizontal", 56),
    Sketcher.Constraint("Vertical", 57),
    Sketcher.Constraint("Horizontal", 58),
    Sketcher.Constraint("Vertical", 59),
    Sketcher.Constraint("Horizontal", 60),
    Sketcher.Constraint("Vertical", 61),
    Sketcher.Constraint("Horizontal", 62),
    Sketcher.Constraint("Vertical", 63),
    Sketcher.Constraint("Horizontal", 65),
    Sketcher.Constraint("Vertical", 69),
    Sketcher.Constraint("Horizontal", 72),
    Sketcher.Constraint("Vertical", 74),
    Sketcher.Constraint("Vertical", 79),
    Sketcher.Constraint("Horizontal", 81),
    Sketcher.Constraint("Horizontal", 82),
    Sketcher.Constraint("Vertical", 84),
    Sketcher.Constraint("Equal", 64, 66),
    Sketcher.Constraint("Equal", 66, 68),
    Sketcher.Constraint("Equal", 68, 71),
    Sketcher.Constraint("Equal", 71, 73),
    Sketcher.Constraint("Equal", 73, 75),
    Sketcher.Constraint("Equal", 75, 76),
    Sketcher.Constraint("Equal", 76, 78),
    Sketcher.Constraint("Equal", 78, 80),
    Sketcher.Constraint("Equal", 80, 83),
    Sketcher.Constraint("Equal", 83, 85),
    Sketcher.Constraint("Equal", 85, 87),
    Sketcher.Constraint("PointOnObject", 33, 2, -1),
    Sketcher.Constraint("PointOnObject", 37, 2, -1),
    Sketcher.Constraint("PointOnObject", 41, 2, -1),
    Sketcher.Constraint("PointOnObject", 45, 2, -1),
    Sketcher.Constraint("PointOnObject", 49, 2, -1),
    Sketcher.Constraint("PointOnObject", 53, 2, -1),
    Sketcher.Constraint("PointOnObject", 57, 2, -1),
    Sketcher.Constraint("PointOnObject", 61, 2, -1),
    Sketcher.Constraint("Parallel", 67, 77),
    Sketcher.Constraint("Parallel", 70, 86),
    Sketcher.Constraint("Horizontal", 66, 3, 71, 3),
    Sketcher.Constraint("Horizontal", 68, 3, 75, 3),
    Sketcher.Constraint("Horizontal", 80, 3, 83, 3),
    Sketcher.Constraint("Horizontal", 78, 3, 85, 3),
    Sketcher.Constraint("Horizontal", 2, 2, 5, 2),
    Sketcher.Constraint("Horizontal", 4, 2, 7, 2),
    Sketcher.Constraint("Horizontal", 6, 2, 9, 2),
    Sketcher.Constraint("Horizontal", 8, 2, 11, 2),
    Sketcher.Constraint("Horizontal", 10, 2, 13, 2),
    Sketcher.Constraint("Horizontal", 12, 2, 15, 2),
    Sketcher.Constraint("Horizontal", 14, 2, 17, 2),
    Sketcher.Constraint("Horizontal", 16, 2, 19, 2),
    Sketcher.Constraint("Horizontal", 18, 2, 21, 2),
    Sketcher.Constraint("Horizontal", 20, 2, 23, 2),
    Sketcher.Constraint("Horizontal", 22, 2, 25, 2),
    Sketcher.Constraint("Horizontal", 24, 2, 27, 2),
    Sketcher.Constraint("Horizontal", 26, 2, 29, 2),
    Sketcher.Constraint("Horizontal", 28, 2, 31, 2),
    Sketcher.Constraint("Horizontal", 0, 2, 35, 2),
    Sketcher.Constraint("Horizontal", 36, 2, 39, 2),
    Sketcher.Constraint("Horizontal", 40, 2, 43, 2),
    Sketcher.Constraint("Horizontal", 44, 2, 47, 2),
    Sketcher.Constraint("Horizontal", 48, 2, 51, 2),
    Sketcher.Constraint("Horizontal", 52, 2, 55, 2),
    Sketcher.Constraint("Horizontal", 56, 2, 59, 2),
    Sketcher.Constraint("Horizontal", 66, 1, 70, 2),
    Sketcher.Constraint("Vertical", 31, 2, 34, 2),
    Sketcher.Constraint("Vertical", 29, 2, 36, 2),
    Sketcher.Constraint("Vertical", 27, 2, 38, 2),
    Sketcher.Constraint("Vertical", 25, 2, 40, 2),
    Sketcher.Constraint("Vertical", 23, 2, 42, 2),
    Sketcher.Constraint("Vertical", 21, 2, 44, 2),
    Sketcher.Constraint("Vertical", 19, 2, 46, 2),
    Sketcher.Constraint("Vertical", 17, 2, 48, 2),
    Sketcher.Constraint("Vertical", 15, 2, 50, 2),
    Sketcher.Constraint("Vertical", 13, 2, 52, 2),
    Sketcher.Constraint("Vertical", 11, 2, 54, 2),
    Sketcher.Constraint("Vertical", 9, 2, 56, 2),
    Sketcher.Constraint("Vertical", 7, 2, 58, 2),
    Sketcher.Constraint("Vertical", 5, 2, 60, 2),
    Sketcher.Constraint("Vertical", 3, 2, 62, 2),
    Sketcher.Constraint("Equal", 2, 4),
    Sketcher.Constraint("Equal", 4, 6),
    Sketcher.Constraint("Equal", 6, 8),
    Sketcher.Constraint("Equal", 8, 10),
    Sketcher.Constraint("Equal", 10, 12),
    Sketcher.Constraint("Equal", 12, 14),
    Sketcher.Constraint("Equal", 14, 16),
    Sketcher.Constraint("Equal", 16, 18),
    Sketcher.Constraint("Equal", 18, 20),
    Sketcher.Constraint("Equal", 20, 22),
    Sketcher.Constraint("Equal", 22, 24),
    Sketcher.Constraint("Equal", 24, 26),
    Sketcher.Constraint("Equal", 26, 28),
    Sketcher.Constraint("Equal", 28, 30),
    Sketcher.Constraint("Equal", 30, 32),
    Sketcher.Constraint("Equal", 72, 81),
    Sketcher.Constraint("Equal", 31, 35),
    Sketcher.Constraint("DistanceX", 0, 2, 0, 1, Q("0.4 in")),
    Sketcher.Constraint("DistanceY", 1, 2, 1, 1, Q("3.2 in")),
    Sketcher.Constraint("DistanceY", 3, 2, 3, 1, Q("0.2 in")),
    Sketcher.Constraint("Radius", 64, Q("0.125 in")),
    Sketcher.Constraint("DistanceX", -1, 1, 0, 2, Q("6.4 in")),
    Sketcher.Constraint("DistanceY", 64, 1, -1, 1, Q("3 in")),
    Sketcher.Constraint("DistanceX", -1, 1, 68, 1, Q("9.4 in")),
    Sketcher.Constraint("DistanceX", -1, 1, 73, 1, Q("9.8 in")),
    Sketcher.Constraint("DistanceX", -1, 1, 78, 1, Q("6.6 in")),
    Sketcher.Constraint("DistanceY", 80, 1, -1, 1, Q("0.6 in")),
    Sketcher.Constraint("DistanceX", -1, 1, 83, 1, Q("12.6 in")),
    Sketcher.Constraint("DistanceX", 65, 2, 65, 1, 51.0547),
    Sketcher.Constraint("DistanceY", 69, 2, 69, 1, 44.673),
])
sketch2.setExpression("Constraints[239]", "Params.sketch2_width")
sketch2.setExpression("Constraints[240]", "Params.sketch2_height")
sketch2.setExpression("Constraints[241]", "Params.sketch2_height2")
sketch2.setExpression("Constraints[242]", "Params.sketch2_radius")
pad2 = body.newObject("PartDesign::Pad", "Pad001")
pad2.Profile = sketch2
pad2.setExpression("Length", "Params.pad2_length")

# Sketch on XZ plane
sketch3 = body.newObject("Sketcher::SketchObject", "Sketch002")
sketch3.AttachmentSupport = (doc.getObject("XZ_Plane"), [""])
sketch3.MapMode = "FlatFace"
sketch3.AttachmentOffset = App.Placement(App.Vector(0, 0, -12.8 * 25.4), App.Rotation())
add_polygon(sketch3, [(5, -86), (0, -86), (0, -5), (5, -5)])  # lines 0-3
sketch3.addConstraint([
    Sketcher.Constraint("Horizontal", 0),
    Sketcher.Constraint("Vertical", 1),
    Sketcher.Constraint("Horizontal", 2),
    Sketcher.Constraint("Vertical", 3),
    Sketcher.Constraint("PointOnObject", 0, 2, -2),
    Sketcher.Constraint("DistanceX", 0, 2, 0, 1, Q("0.2 in")),
    Sketcher.Constraint("DistanceY", 1, 1, 1, 2, Q("3.2 in")),
    Sketcher.Constraint("DistanceY", 0, 2, -1, 1, Q("3.4 in")),
])
sketch3.setExpression("Constraints[9]", "Params.sketch3_width")
sketch3.setExpression("Constraints[10]", "Params.sketch3_height")
pad3 = body.newObject("PartDesign::Pad", "Pad002")
pad3.Profile = sketch3
pad3.setExpression("Length", "Params.pad3_length")
pad3.Reversed = True

doc.recompute()
